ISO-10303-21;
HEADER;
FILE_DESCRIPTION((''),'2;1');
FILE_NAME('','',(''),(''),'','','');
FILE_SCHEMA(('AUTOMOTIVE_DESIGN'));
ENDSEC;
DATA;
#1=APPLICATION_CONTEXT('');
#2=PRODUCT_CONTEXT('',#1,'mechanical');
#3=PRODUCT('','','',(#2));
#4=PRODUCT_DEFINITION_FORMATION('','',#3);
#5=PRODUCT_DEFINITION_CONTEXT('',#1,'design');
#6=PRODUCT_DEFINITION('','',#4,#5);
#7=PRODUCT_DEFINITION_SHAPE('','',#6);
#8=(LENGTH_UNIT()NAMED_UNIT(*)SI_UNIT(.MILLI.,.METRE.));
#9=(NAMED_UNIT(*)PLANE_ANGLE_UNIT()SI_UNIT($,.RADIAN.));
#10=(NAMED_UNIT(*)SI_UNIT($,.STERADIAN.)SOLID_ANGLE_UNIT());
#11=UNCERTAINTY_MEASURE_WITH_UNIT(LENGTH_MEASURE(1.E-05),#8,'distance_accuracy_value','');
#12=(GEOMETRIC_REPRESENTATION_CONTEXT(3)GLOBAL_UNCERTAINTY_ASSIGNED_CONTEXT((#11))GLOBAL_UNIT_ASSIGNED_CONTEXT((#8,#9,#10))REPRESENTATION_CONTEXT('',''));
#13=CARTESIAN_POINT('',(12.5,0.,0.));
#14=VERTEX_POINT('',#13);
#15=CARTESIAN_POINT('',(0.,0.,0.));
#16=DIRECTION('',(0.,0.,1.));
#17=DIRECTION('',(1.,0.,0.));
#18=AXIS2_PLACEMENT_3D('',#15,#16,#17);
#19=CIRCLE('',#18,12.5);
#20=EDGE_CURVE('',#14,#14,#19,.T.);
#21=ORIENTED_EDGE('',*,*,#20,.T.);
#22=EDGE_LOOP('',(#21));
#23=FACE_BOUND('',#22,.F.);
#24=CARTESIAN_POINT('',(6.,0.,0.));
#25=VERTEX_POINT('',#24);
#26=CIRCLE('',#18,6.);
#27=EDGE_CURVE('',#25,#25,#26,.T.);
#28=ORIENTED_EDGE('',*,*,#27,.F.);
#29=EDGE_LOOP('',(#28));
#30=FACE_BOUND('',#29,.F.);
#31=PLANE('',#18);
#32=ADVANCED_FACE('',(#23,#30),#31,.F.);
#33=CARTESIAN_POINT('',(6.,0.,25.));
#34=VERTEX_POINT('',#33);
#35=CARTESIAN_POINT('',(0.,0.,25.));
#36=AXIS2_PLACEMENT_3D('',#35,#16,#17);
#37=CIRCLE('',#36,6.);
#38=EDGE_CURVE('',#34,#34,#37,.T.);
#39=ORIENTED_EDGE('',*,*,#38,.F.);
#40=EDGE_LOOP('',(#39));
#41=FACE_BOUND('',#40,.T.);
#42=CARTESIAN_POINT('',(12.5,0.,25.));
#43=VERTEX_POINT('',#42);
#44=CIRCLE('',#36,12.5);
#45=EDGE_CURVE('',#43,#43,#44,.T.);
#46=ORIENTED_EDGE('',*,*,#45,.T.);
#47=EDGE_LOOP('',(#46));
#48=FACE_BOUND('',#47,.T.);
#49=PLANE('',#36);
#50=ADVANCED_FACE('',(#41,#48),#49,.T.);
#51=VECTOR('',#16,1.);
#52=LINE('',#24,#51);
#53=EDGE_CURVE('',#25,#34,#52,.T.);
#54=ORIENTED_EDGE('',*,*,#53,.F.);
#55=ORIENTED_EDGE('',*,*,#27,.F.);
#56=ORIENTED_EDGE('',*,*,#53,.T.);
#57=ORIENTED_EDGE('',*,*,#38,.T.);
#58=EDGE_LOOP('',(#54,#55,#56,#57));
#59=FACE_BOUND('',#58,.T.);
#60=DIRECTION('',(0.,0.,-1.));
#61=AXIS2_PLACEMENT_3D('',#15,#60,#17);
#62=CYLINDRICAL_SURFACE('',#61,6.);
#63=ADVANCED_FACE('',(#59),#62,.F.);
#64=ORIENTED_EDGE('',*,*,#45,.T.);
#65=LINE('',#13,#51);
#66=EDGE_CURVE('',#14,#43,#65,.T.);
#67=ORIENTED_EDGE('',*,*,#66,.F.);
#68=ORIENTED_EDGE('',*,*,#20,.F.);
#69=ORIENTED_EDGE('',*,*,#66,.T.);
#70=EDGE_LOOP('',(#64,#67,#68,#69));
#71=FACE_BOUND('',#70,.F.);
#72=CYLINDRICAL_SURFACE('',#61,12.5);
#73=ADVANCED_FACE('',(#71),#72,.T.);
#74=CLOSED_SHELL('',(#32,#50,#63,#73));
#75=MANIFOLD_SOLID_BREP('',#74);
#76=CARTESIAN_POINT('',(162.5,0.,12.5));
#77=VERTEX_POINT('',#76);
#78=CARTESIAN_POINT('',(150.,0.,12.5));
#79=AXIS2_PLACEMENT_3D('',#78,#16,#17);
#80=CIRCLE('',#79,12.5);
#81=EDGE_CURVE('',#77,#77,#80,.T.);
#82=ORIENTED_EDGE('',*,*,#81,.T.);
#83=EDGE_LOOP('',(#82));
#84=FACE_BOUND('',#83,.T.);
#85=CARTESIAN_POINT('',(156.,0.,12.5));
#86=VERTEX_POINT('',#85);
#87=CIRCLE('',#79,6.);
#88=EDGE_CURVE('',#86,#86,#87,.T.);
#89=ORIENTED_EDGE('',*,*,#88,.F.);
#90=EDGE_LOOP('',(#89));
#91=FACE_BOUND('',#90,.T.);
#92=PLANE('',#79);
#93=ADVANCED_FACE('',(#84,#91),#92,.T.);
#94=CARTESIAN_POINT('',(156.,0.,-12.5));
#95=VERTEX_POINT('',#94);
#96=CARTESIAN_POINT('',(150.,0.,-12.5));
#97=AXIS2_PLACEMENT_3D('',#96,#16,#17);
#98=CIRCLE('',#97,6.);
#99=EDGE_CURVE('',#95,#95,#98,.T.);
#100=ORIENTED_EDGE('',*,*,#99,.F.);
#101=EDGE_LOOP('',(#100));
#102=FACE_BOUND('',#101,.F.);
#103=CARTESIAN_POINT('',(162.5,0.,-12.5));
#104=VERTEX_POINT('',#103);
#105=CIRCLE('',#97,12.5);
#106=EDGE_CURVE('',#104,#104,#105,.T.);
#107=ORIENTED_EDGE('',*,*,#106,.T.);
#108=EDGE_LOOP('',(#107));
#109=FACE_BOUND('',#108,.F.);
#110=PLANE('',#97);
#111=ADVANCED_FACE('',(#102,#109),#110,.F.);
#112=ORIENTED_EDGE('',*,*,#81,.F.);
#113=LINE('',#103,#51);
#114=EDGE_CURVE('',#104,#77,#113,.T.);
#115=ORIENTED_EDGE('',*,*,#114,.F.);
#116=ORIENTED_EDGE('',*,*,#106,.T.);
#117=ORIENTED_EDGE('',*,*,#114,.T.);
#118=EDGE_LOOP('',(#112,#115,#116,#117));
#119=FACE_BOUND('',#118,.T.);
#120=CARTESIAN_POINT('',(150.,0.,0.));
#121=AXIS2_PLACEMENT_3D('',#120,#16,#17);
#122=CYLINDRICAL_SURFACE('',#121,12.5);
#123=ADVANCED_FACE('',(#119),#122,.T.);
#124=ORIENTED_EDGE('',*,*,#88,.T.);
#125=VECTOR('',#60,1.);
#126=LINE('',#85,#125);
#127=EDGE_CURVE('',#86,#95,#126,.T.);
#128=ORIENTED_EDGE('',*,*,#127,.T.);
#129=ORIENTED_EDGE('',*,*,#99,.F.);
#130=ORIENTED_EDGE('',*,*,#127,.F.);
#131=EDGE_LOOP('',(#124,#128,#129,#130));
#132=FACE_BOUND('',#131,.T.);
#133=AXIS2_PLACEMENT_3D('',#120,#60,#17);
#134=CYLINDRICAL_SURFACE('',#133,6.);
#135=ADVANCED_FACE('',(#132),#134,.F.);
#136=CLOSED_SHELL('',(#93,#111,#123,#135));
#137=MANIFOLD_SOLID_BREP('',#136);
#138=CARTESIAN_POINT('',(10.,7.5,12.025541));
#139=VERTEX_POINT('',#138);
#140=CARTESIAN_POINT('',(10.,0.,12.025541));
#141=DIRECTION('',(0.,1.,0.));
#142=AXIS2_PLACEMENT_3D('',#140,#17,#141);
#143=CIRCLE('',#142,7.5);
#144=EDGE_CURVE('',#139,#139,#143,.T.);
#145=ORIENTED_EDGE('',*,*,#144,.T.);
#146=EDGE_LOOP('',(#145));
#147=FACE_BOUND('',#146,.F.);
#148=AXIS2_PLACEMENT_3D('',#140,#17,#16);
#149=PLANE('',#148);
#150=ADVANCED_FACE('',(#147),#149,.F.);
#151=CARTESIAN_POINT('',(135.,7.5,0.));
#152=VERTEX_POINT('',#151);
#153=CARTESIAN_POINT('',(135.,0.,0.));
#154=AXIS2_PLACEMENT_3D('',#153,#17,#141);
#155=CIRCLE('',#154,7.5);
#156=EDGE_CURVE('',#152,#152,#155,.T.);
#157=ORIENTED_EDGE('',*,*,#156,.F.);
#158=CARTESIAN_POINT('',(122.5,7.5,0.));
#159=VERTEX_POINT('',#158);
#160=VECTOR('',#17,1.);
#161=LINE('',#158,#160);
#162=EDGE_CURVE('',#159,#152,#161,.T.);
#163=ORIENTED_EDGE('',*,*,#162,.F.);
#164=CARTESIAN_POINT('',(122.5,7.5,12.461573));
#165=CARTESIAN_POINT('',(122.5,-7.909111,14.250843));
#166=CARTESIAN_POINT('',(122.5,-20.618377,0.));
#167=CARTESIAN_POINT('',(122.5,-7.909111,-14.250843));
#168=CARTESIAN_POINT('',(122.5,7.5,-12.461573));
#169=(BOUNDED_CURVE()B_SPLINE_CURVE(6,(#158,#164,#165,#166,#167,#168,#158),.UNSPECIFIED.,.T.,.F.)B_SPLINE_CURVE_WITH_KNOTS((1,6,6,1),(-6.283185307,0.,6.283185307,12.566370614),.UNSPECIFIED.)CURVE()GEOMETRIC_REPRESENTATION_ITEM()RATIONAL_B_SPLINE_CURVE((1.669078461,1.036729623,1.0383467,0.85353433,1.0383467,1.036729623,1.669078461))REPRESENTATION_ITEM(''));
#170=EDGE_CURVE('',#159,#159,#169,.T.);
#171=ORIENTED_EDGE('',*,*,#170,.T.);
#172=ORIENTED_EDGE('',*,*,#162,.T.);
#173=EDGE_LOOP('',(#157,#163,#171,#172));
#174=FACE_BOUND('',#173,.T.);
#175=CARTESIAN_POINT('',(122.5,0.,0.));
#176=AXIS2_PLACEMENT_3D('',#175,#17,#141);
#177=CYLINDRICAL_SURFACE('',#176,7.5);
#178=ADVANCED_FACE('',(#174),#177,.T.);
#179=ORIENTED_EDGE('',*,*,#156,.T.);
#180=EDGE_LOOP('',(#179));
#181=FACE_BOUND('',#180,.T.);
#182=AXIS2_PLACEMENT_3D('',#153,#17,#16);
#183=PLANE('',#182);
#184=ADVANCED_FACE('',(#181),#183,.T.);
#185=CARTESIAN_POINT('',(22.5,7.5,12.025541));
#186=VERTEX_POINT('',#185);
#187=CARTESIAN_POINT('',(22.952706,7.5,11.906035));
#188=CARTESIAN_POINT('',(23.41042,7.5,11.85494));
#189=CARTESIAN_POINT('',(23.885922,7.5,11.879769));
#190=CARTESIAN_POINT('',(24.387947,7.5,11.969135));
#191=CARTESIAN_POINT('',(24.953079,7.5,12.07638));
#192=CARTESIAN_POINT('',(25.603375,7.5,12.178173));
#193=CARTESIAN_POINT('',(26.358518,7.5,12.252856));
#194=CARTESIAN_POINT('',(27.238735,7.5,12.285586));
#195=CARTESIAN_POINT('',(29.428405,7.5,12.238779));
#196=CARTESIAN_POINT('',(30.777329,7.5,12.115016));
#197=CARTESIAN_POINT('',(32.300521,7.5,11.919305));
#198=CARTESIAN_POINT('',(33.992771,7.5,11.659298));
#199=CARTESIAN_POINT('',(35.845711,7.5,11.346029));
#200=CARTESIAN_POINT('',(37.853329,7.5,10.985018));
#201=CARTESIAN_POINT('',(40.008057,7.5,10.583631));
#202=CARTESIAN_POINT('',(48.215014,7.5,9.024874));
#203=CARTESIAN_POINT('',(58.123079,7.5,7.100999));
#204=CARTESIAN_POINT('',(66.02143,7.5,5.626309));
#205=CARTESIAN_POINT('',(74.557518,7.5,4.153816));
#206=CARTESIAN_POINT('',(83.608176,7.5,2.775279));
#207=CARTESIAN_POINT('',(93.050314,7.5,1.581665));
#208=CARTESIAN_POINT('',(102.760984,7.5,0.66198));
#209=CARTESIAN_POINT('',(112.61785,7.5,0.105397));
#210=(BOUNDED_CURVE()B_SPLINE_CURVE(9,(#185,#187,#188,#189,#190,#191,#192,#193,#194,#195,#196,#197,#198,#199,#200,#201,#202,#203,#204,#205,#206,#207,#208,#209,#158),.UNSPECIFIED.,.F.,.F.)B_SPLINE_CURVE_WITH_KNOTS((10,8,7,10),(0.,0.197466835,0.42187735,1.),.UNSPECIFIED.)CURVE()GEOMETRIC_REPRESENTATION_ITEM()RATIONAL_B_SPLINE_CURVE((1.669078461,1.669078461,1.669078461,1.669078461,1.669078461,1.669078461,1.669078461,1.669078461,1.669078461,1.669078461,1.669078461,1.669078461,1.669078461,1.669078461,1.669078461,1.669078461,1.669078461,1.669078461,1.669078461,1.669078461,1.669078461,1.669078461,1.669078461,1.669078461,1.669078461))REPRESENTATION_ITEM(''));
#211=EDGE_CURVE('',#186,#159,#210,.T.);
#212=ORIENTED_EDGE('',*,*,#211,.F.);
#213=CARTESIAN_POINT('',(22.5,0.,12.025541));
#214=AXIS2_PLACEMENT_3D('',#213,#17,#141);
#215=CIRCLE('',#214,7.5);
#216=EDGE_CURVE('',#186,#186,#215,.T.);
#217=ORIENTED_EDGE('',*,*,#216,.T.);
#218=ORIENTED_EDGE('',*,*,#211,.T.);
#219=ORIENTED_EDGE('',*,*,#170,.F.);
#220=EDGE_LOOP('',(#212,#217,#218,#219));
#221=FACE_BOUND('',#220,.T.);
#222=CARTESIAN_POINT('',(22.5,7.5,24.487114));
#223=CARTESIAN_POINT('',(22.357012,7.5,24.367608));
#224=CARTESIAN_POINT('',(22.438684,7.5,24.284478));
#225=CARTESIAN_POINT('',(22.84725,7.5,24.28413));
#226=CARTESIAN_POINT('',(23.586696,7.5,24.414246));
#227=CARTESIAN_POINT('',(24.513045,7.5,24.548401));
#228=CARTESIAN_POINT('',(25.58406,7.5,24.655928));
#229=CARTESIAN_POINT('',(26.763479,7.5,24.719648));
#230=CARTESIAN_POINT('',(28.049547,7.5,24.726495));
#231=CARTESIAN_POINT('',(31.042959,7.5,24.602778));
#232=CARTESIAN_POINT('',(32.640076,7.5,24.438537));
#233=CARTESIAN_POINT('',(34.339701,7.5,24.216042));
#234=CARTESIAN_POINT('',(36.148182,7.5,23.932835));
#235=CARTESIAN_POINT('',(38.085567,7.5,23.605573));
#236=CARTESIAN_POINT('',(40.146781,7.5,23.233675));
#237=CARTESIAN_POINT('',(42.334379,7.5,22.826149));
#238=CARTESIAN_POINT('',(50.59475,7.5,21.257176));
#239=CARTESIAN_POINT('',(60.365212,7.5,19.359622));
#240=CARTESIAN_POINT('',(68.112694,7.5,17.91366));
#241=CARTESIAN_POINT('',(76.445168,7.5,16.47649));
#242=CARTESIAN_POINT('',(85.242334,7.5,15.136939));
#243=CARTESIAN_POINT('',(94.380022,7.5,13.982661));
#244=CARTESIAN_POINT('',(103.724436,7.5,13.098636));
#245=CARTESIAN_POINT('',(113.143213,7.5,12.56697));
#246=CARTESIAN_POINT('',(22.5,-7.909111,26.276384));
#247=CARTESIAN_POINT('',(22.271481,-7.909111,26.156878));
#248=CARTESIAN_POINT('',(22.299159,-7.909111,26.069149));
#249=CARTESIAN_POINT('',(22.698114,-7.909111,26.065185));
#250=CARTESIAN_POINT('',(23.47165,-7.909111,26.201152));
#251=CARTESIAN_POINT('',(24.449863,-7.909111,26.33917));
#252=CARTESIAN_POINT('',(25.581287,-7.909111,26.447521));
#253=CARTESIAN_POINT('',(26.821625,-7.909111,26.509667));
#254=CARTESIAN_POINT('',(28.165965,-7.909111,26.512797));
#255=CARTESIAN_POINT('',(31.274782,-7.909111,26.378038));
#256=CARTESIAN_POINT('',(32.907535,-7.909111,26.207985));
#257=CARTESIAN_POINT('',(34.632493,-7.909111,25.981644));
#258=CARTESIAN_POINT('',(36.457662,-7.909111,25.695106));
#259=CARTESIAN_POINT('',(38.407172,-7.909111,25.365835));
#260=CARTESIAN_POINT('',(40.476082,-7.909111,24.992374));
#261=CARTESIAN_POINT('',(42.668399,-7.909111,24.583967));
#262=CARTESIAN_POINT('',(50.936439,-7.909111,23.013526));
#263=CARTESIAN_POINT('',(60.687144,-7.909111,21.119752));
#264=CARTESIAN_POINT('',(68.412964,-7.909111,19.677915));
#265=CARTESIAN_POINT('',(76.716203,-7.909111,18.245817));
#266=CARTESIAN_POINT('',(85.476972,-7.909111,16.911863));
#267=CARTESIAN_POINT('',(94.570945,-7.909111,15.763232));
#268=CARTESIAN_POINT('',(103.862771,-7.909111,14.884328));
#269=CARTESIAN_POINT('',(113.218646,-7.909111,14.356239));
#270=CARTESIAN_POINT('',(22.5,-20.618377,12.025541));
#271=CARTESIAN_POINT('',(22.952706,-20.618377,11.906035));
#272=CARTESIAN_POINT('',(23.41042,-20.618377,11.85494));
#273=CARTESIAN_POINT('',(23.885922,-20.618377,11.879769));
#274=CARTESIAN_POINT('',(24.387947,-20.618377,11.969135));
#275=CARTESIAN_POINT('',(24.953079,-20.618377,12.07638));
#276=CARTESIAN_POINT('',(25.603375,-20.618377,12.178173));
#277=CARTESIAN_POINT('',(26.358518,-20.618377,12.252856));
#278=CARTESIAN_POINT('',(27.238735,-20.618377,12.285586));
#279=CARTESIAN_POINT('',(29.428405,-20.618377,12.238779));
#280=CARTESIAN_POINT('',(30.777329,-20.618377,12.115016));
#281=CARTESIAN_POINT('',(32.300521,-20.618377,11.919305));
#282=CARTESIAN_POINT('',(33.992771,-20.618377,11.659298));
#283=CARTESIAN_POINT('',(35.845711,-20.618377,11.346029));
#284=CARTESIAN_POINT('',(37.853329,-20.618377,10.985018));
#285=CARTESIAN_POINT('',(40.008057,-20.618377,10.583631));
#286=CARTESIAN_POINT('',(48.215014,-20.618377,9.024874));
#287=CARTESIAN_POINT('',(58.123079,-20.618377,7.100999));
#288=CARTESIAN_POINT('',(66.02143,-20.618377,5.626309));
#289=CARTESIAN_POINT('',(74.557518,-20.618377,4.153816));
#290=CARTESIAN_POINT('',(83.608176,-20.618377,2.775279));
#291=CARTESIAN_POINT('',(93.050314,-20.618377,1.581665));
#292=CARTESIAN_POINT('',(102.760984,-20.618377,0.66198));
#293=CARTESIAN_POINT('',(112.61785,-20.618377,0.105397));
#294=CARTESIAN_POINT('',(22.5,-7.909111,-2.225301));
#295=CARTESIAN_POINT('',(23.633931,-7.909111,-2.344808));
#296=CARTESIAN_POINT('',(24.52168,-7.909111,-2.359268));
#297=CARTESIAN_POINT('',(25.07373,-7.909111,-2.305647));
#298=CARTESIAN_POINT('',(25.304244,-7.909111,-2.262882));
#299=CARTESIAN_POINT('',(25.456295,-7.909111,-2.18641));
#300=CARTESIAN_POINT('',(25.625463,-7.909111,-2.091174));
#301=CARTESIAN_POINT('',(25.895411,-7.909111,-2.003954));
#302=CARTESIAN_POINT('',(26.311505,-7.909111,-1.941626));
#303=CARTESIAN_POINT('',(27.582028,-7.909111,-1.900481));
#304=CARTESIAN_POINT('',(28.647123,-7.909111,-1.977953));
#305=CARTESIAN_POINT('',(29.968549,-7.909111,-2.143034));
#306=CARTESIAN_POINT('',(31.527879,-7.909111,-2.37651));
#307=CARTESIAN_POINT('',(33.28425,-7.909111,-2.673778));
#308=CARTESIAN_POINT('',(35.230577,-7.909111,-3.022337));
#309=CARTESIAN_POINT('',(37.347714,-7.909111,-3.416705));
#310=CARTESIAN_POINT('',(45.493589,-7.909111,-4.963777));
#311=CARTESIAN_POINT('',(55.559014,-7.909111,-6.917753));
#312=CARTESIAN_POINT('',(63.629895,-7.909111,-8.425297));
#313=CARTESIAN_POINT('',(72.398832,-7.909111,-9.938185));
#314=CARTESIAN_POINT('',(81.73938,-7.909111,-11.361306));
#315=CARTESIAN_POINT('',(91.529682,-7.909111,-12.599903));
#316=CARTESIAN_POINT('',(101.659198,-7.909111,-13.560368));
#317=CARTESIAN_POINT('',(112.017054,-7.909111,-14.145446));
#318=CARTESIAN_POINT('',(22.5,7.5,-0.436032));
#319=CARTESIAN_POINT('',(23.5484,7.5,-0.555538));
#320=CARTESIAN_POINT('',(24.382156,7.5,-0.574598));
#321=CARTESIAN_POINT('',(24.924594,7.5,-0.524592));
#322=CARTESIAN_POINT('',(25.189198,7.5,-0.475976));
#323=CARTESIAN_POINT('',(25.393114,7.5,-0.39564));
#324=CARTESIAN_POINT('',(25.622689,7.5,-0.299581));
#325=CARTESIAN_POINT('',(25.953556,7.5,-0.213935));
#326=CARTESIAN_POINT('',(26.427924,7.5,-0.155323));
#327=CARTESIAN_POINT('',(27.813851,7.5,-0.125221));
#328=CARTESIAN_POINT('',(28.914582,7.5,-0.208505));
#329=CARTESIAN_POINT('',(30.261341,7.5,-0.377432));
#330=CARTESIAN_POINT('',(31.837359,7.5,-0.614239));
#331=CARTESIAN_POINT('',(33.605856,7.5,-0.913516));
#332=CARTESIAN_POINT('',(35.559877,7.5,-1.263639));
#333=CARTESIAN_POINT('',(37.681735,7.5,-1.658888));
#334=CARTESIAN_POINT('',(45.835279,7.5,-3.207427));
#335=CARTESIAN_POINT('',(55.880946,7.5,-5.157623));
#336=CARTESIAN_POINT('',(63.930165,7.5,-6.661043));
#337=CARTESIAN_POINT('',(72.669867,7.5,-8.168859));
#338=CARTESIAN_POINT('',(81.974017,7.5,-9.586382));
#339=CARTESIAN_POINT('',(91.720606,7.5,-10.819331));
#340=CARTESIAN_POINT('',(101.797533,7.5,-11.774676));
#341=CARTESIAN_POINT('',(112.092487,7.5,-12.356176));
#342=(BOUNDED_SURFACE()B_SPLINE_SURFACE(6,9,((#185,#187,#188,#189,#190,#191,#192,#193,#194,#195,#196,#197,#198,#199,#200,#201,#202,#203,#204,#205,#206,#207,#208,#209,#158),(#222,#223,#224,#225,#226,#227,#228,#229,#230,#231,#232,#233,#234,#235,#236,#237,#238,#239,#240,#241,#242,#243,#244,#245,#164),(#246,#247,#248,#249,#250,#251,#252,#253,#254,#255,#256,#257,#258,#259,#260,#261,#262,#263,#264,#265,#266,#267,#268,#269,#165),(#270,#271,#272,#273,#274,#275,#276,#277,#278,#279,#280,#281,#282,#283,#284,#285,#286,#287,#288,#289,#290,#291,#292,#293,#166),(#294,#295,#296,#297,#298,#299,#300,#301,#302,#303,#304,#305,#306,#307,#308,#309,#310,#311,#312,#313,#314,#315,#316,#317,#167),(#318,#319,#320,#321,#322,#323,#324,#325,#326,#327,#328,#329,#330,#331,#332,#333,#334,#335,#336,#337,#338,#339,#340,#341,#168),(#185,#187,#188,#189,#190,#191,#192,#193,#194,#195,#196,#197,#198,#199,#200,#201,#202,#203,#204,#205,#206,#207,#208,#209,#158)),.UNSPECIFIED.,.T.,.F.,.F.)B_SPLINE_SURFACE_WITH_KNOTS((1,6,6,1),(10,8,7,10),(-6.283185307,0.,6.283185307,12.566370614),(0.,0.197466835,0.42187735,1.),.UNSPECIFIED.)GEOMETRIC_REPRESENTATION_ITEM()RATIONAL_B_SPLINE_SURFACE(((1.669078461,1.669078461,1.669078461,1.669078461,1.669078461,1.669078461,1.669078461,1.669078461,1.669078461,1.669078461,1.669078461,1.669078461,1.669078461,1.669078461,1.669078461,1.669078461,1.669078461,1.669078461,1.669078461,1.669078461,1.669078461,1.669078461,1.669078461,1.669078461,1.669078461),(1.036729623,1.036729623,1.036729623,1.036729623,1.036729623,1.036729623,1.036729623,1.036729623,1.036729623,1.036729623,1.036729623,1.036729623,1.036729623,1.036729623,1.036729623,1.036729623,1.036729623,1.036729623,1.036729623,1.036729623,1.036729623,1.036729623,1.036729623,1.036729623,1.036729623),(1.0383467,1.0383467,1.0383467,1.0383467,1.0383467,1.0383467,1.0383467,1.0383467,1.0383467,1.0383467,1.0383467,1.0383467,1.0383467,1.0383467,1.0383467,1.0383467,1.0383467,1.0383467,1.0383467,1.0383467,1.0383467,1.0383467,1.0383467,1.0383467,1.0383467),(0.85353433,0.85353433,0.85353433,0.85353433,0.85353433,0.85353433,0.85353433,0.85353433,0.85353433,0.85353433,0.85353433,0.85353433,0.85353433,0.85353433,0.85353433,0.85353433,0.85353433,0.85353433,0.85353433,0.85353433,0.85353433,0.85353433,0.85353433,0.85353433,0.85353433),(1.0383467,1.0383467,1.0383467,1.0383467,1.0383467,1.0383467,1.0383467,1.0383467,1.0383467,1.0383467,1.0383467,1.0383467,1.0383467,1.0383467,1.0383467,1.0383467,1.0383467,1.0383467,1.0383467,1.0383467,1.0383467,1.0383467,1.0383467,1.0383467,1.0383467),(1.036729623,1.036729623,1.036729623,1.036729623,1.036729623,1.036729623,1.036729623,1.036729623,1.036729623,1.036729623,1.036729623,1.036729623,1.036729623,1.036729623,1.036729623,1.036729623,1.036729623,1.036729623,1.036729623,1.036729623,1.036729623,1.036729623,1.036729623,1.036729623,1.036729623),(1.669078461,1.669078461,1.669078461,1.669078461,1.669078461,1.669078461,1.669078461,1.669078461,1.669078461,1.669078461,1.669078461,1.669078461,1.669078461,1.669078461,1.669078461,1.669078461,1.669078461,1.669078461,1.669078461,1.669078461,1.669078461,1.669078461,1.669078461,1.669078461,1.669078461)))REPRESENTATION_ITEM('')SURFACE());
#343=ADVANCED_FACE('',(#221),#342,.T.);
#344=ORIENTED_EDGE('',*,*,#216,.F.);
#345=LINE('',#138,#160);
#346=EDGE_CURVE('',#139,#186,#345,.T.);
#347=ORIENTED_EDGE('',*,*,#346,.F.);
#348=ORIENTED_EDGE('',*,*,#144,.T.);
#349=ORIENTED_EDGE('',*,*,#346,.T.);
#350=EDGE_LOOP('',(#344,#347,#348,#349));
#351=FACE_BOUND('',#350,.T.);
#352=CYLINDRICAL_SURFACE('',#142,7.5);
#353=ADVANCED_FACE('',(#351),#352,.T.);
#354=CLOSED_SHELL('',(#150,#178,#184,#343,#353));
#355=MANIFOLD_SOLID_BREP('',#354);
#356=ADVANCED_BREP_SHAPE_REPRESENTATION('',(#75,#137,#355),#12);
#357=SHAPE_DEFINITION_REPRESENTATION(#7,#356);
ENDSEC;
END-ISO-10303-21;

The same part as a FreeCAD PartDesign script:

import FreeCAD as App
import Part
import Sketcher

doc = App.newDocument("Part")
body = doc.addObject("PartDesign::Body", "Body")

# Sketch on XY plane
sketch1 = body.newObject("Sketcher::SketchObject", "Sketch")
sketch1.AttachmentSupport = (doc.getObject("XY_Plane"), [""])
sketch1.MapMode = "FlatFace"
sketch1.addGeometry([
    Part.Circle(App.Vector(0, 0, 0), App.Vector(0, 0, 1), 12.5),
    Part.Circle(App.Vector(0, 0, 0), App.Vector(0, 0, 1), 6),
], False)
sketch1.addConstraint([
    Sketcher.Constraint("Coincident", 0, 3, -1, 1),
    Sketcher.Constraint("Coincident", 1, 3, -1, 1),
    Sketcher.Constraint("Diameter", 0, 25.0),
    Sketcher.Constraint("Diameter", 1, 12.0),
])
pad1 = body.newObject("PartDesign::Pad", "Pad")
pad1.Profile = sketch1
pad1.Length = 25
body2 = doc.addObject("PartDesign::Body", "Body001")

# Sketch on XY plane
sketch2 = body2.newObject("Sketcher::SketchObject", "Sketch001")
sketch2.AttachmentSupport = (doc.getObject("XY_Plane001"), [""])
sketch2.MapMode = "FlatFace"
sketch2.addGeometry([
    Part.Circle(App.Vector(150, 0, 0), App.Vector(0, 0, 1), 12.5),
    Part.Circle(App.Vector(150, 0, 0), App.Vector(0, 0, 1), 6),
], False)
sketch2.addConstraint([
    Sketcher.Constraint("Coincident", 1, 3, 0, 3),
    Sketcher.Constraint("PointOnObject", 0, 3, -1),
    Sketcher.Constraint("Diameter", 0, 25.0),
    Sketcher.Constraint("Diameter", 1, 12.0),
    Sketcher.Constraint("DistanceX", -1, 1, 0, 3, 150.0),
])
pad2 = body2.newObject("PartDesign::Pad", "Pad001")
pad2.Profile = sketch2
pad2.Length = 25
pad2.Midplane = True
body3 = doc.addObject("PartDesign::Body", "Body002")

# Sketch on YZ plane
sketch3 = body3.newObject("Sketcher::SketchObject", "Sketch002")
sketch3.AttachmentSupport = (doc.getObject("YZ_Plane002"), [""])
sketch3.MapMode = "FlatFace"
sketch3.AttachmentOffset = App.Placement(App.Vector(0, 0, 10), App.Rotation())
sketch3.addGeometry(Part.Circle(App.Vector(0, 12.025541, 0), App.Vector(0, 0, 1), 7.5), False)
sketch3.addConstraint([
    Sketcher.Constraint("PointOnObject", 0, 3, -2),
    Sketcher.Constraint("Diameter", 0, 15.0),
    Sketcher.Constraint("DistanceY", -1, 1, 0, 3, 12.025541),
])

# Sketch on XZ plane
sketch4 = body3.newObject("Sketcher::SketchObject", "Sketch003")
sketch4.AttachmentSupport = (doc.getObject("XZ_Plane002"), [""])
sketch4.MapMode = "FlatFace"
sketch4.addGeometry([
    Part.LineSegment(App.Vector(12.5, 12.025541, 0), App.Vector(25, 12.025541, 0)),
    Part.BSplineCurve([App.Vector(25, 12.025541, 0), App.Vector(26.358117, 12.025541, 0), App.Vector(33.149599, 13.50501, 0), App.Vector(83.845655, 0, 0), App.Vector(125, 0, 0)], [4, 1, 4], [0, 0.197466835, 1], False, 3, [1, 1, 1, 1, 1], False),
    Part.LineSegment(App.Vector(125, 0, 0), App.Vector(137.5, 0, 0)),
], False)
sketch4.addConstraint([
    Sketcher.Constraint("Block", 1),
    Sketcher.Constraint("Coincident", 0, 2, 1, 1),
    Sketcher.Constraint("Coincident", 1, 2, 2, 1),
    Sketcher.Constraint("Horizontal", 0),
    Sketcher.Constraint("Horizontal", 2),
    Sketcher.Constraint("Equal", 0, 2),
    Sketcher.Constraint("DistanceX", 0, 1, 0, 2, 12.5),
])
doc.recompute()

additivepipe = body3.newObject("PartDesign::AdditivePipe", "AdditivePipe")
additivepipe.Profile = sketch3
additivepipe.Spine = (sketch4, ["Edge1", "Edge2", "Edge3"])

doc.recompute()
